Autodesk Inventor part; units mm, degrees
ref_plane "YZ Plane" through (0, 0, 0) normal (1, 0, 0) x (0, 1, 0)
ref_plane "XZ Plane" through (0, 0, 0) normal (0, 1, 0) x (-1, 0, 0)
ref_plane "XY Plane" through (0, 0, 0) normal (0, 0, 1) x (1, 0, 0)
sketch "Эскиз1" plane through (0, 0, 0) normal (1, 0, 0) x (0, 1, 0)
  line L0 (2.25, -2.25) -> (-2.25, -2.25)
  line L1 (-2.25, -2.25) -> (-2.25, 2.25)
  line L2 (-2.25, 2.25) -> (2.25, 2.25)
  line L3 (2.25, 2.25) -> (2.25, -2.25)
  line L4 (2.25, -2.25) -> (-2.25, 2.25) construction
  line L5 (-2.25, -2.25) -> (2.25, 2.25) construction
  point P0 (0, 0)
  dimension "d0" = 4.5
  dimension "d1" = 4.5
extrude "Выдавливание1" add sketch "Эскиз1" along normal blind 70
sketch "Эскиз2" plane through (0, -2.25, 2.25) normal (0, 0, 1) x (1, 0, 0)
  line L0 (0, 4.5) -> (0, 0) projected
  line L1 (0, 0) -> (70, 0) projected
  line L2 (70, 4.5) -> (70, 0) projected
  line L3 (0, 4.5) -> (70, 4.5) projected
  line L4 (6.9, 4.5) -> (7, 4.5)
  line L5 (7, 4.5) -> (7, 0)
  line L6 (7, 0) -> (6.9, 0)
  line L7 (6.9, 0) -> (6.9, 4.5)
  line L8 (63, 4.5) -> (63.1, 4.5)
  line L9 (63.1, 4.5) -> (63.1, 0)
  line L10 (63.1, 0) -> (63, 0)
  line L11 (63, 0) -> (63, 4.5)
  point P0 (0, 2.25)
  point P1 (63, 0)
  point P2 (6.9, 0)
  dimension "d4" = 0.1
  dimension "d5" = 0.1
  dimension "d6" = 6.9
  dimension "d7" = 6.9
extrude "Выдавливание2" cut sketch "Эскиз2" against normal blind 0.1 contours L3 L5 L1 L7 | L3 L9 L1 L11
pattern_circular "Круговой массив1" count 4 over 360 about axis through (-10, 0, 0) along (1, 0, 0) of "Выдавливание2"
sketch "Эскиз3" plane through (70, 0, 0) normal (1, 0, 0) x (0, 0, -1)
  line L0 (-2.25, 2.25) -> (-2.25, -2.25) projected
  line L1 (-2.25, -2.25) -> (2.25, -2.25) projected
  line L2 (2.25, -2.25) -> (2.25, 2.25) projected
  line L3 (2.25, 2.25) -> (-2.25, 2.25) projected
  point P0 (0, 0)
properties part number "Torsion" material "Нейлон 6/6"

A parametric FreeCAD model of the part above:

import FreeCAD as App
import Part
import Sketcher
from FreeCAD import Vector
Q = App.Units.Quantity

doc = App.newDocument("Part")
params = doc.addObject("Spreadsheet::Sheet", "Params")
for row, (alias, value) in enumerate([
    ("sketch1_width", "4.5 mm"),
    ("pad1_length", "70 mm"),
    ("sketch2_width", "0.1 mm"),
    ("sketch2_height", "4.5 mm"),
    ("pocket1_length", "0.1 mm"),
], start=1):
    params.set(f"A{row}", alias)
    params.set(f"B{row}", "=" + value)
    params.setAlias(f"B{row}", alias)

body = doc.addObject("PartDesign::Body", "Body")

# Sketch on YZ plane
sketch1 = body.newObject("Sketcher::SketchObject", "Sketch")
sketch1.AttachmentSupport = (doc.getObject("YZ_Plane"), [""])
sketch1.MapMode = "FlatFace"
sketch1.addGeometry([
    Part.LineSegment(Vector(-2.2, -2.2, 0), Vector(2.2, -2.2, 0)),
    Part.LineSegment(Vector(2.2, -2.2, 0), Vector(2.2, 2.2, 0)),
    Part.LineSegment(Vector(2.2, 2.2, 0), Vector(-2.2, 2.2, 0)),
    Part.LineSegment(Vector(-2.2, 2.2, 0), Vector(-2.2, -2.2, 0)),
], False)
sketch1.addConstraint([
    Sketcher.Constraint("Coincident", 0, 2, 1, 1),
    Sketcher.Constraint("Coincident", 1, 2, 2, 1),
    Sketcher.Constraint("Coincident", 2, 2, 3, 1),
    Sketcher.Constraint("Coincident", 3, 2, 0, 1),
    Sketcher.Constraint("Horizontal", 0),
    Sketcher.Constraint("Vertical", 1),
    Sketcher.Constraint("Horizontal", 2),
    Sketcher.Constraint("Vertical", 3),
    Sketcher.Constraint("Symmetric", 0, 2, 2, 2, -1, 1),
    Sketcher.Constraint("Equal", 2, 1),
    Sketcher.Constraint("DistanceX", 0, 1, 0, 2, Q("4.5 mm")),
])
sketch1.setExpression("Constraints[10]", "Params.sketch1_width")
pad1 = body.newObject("PartDesign::Pad", "Pad")
pad1.Profile = sketch1
pad1.setExpression("Length", "Params.pad1_length")

# Sketch on XY plane
sketch2 = body.newObject("Sketcher::SketchObject", "Sketch001")
sketch2.AttachmentSupport = (doc.getObject("XY_Plane"), [""])
sketch2.MapMode = "FlatFace"
sketch2.AttachmentOffset = App.Placement(Vector(0, 0, 2.25), App.Rotation())
sketch2.addGeometry([
    Part.LineSegment(Vector(7, 2.25, 0), Vector(6.9, 2.25, 0)),  # 0
    Part.LineSegment(Vector(6.9, 2.25, 0), Vector(6.9, -2.25, 0)),  # 1
    Part.LineSegment(Vector(6.9, -2.25, 0), Vector(7, -2.25, 0)),  # 2
    Part.LineSegment(Vector(7, -2.25, 0), Vector(7, 2.25, 0)),  # 3
    Part.LineSegment(Vector(63.1, 2.25, 0), Vector(63, 2.25, 0)),  # 4
    Part.LineSegment(Vector(63, 2.25, 0), Vector(63, -2.25, 0)),  # 5
    Part.LineSegment(Vector(63, -2.25, 0), Vector(63.1, -2.25, 0)),  # 6
    Part.LineSegment(Vector(63.1, -2.25, 0), Vector(63.1, 2.25, 0)),  # 7
], False)
sketch2.addConstraint([
    Sketcher.Constraint("Coincident", 0, 2, 1, 1),
    Sketcher.Constraint("Coincident", 1, 2, 2, 1),
    Sketcher.Constraint("Coincident", 2, 2, 3, 1),
    Sketcher.Constraint("Coincident", 3, 2, 0, 1),
    Sketcher.Constraint("Coincident", 4, 2, 5, 1),
    Sketcher.Constraint("Coincident", 5, 2, 6, 1),
    Sketcher.Constraint("Coincident", 6, 2, 7, 1),
    Sketcher.Constraint("Coincident", 7, 2, 4, 1),
    Sketcher.Constraint("Horizontal", 0),
    Sketcher.Constraint("Vertical", 1),
    Sketcher.Constraint("Horizontal", 2),
    Sketcher.Constraint("Vertical", 3),
    Sketcher.Constraint("Horizontal", 4),
    Sketcher.Constraint("Vertical", 5),
    Sketcher.Constraint("Horizontal", 6),
    Sketcher.Constraint("Vertical", 7),
    Sketcher.Constraint("Horizontal", 3, 2, 4, 2),
    Sketcher.Constraint("Horizontal", 2, 2, 5, 2),
    Sketcher.Constraint("Equal", 2, 4),
    Sketcher.Constraint("DistanceX", 0, 2, 0, 1, Q("0.1 mm")),
    Sketcher.Constraint("DistanceX", -1, 1, 0, 2, Q("6.9 mm")),
    Sketcher.Constraint("DistanceY", 1, 2, 1, 1, Q("4.5 mm")),
    Sketcher.Constraint("DistanceX", -1, 1, 4, 2, Q("63 mm")),
    Sketcher.Constraint("DistanceY", -1, 1, 0, 2, Q("2.25 mm")),
])
sketch2.setExpression("Constraints[19]", "Params.sketch2_width")
sketch2.setExpression("Constraints[21]", "Params.sketch2_height")
pocket1 = body.newObject("PartDesign::Pocket", "Pocket")
pocket1.Profile = sketch2
pocket1.setExpression("Length", "Params.pocket1_length")
doc.recompute()

polarpattern = body.newObject("PartDesign::PolarPattern", "PolarPattern")
polarpattern.Originals = [pocket1]
polarpattern.Axis = (doc.getObject("X_Axis"), [""])
polarpattern.Angle = 360
polarpattern.Occurrences = 4
body.Tip = polarpattern

doc.recompute()
